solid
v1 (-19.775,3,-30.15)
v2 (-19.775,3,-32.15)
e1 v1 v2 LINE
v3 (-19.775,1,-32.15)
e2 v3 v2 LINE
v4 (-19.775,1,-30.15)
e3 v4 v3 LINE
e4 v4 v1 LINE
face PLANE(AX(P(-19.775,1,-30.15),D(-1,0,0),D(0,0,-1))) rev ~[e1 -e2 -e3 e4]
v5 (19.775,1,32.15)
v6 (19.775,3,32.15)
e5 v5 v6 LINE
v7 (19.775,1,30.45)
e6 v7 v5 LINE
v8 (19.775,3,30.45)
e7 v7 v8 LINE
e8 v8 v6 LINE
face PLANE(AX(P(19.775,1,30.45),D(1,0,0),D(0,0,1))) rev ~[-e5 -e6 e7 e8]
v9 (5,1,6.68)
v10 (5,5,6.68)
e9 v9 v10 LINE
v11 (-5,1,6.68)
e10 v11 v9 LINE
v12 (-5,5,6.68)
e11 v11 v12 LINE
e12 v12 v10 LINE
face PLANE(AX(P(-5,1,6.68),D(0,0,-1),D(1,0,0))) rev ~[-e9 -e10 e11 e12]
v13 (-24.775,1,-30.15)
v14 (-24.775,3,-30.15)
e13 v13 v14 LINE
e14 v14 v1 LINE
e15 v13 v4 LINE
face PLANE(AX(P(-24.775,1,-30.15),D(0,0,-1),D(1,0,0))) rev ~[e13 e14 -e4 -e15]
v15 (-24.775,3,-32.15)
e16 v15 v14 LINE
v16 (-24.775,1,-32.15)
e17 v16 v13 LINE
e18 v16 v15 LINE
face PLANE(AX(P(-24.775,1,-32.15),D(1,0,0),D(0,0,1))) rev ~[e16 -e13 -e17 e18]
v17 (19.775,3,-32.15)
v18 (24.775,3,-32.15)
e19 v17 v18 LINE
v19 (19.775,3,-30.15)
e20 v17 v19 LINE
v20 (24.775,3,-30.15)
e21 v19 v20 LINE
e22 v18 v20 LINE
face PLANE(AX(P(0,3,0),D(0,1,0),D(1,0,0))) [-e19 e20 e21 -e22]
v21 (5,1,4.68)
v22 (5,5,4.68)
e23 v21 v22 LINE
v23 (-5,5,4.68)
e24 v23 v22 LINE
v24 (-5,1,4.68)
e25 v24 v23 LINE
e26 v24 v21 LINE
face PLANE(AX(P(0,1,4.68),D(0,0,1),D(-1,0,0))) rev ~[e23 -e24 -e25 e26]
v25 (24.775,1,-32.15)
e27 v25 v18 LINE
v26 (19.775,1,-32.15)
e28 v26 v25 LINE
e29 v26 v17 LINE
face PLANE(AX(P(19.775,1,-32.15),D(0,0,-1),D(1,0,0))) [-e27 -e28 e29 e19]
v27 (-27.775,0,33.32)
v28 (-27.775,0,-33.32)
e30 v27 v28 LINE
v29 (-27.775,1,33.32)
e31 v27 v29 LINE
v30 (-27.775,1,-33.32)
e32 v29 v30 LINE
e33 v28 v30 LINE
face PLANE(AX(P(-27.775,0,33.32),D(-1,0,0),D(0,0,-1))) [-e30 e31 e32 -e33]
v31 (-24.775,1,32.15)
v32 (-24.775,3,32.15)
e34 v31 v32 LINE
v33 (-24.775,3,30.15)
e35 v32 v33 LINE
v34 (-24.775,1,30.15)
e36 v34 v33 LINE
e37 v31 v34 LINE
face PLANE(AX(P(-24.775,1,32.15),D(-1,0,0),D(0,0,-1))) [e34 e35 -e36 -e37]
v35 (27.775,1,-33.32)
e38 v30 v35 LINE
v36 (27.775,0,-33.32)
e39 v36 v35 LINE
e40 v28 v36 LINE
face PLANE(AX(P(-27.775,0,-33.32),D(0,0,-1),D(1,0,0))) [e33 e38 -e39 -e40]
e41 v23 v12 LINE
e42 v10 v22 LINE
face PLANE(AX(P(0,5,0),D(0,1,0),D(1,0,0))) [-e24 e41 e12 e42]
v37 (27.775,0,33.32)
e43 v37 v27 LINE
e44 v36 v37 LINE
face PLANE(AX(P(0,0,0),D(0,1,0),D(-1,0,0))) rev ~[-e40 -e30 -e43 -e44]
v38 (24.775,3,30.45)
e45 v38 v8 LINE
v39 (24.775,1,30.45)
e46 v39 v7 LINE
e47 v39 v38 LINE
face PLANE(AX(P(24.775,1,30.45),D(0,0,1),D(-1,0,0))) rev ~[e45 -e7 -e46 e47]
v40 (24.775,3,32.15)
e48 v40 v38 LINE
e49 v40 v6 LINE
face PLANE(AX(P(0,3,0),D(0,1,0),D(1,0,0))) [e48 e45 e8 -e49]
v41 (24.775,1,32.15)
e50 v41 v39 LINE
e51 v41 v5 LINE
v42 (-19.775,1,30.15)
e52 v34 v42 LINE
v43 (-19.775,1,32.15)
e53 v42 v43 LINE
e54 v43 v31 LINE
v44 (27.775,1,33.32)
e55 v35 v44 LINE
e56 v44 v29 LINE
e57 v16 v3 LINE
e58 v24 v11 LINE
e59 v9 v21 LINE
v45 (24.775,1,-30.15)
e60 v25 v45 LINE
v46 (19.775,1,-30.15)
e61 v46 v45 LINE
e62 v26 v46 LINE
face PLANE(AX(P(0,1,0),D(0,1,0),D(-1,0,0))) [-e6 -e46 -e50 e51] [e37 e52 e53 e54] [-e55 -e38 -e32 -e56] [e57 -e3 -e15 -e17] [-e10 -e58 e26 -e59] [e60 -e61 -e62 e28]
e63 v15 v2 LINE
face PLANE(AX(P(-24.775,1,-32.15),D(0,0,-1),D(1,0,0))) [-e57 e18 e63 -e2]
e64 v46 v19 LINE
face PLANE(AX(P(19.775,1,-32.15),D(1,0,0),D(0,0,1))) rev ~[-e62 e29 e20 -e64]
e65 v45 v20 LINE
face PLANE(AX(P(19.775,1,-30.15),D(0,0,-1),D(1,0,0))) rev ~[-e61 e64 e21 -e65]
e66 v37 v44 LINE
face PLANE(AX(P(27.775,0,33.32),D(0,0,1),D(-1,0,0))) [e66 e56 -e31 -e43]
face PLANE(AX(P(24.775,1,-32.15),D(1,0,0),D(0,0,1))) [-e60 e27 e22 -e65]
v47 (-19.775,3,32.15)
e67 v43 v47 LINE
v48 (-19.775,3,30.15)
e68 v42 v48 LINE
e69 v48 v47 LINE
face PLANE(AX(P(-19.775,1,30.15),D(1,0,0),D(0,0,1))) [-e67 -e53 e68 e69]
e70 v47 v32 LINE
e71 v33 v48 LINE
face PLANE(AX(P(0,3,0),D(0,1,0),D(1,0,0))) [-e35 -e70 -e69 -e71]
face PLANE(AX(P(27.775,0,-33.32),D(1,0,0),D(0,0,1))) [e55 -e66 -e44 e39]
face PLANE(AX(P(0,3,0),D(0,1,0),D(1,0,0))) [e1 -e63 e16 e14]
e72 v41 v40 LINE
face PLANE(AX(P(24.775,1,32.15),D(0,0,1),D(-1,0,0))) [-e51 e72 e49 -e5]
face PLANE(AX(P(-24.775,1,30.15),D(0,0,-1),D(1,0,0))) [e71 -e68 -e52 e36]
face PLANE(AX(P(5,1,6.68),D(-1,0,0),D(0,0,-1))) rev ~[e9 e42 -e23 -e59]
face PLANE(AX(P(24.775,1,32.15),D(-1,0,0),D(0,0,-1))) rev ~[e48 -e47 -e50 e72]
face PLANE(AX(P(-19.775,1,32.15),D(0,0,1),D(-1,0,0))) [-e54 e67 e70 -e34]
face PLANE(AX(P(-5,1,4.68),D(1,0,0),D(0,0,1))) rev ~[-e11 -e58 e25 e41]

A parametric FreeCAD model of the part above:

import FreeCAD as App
import Part
import Sketcher
Q = App.Units.Quantity

doc = App.newDocument("Part")
params = doc.addObject("Spreadsheet::Sheet", "Params")
for row, (alias, value) in enumerate([
    ("sketch1_width", "55.55 mm"),
    ("sketch1_height", "66.64 mm"),
    ("pad1_length", "1 mm"),
    ("sketch2_width", "5 mm"),
    ("sketch2_height", "2 mm"),
    ("sketch2_height2", "1.7 mm"),
    ("pad2_length", "2 mm"),
    ("sketch3_height", "2 mm"),
    ("pad3_length", "4 mm"),
], start=1):
    params.set(f"A{row}", alias)
    params.set(f"B{row}", "=" + value)
    params.setAlias(f"B{row}", alias)

body = doc.addObject("PartDesign::Body", "Body")

# Sketch on XZ plane
sketch1 = body.newObject("Sketcher::SketchObject", "Sketch")
sketch1.AttachmentSupport = (doc.getObject("XZ_Plane"), [""])
sketch1.MapMode = "FlatFace"
sketch1.addGeometry(Part.LineSegment(App.Vector(28, -33, 0), App.Vector(-28, -33, 0)), False)
sketch1.addGeometry(Part.LineSegment(App.Vector(-28, -33, 0), App.Vector(-28, 33, 0)), False)
sketch1.addGeometry(Part.LineSegment(App.Vector(-28, 33, 0), App.Vector(28, 33, 0)), False)
sketch1.addGeometry(Part.LineSegment(App.Vector(28, 33, 0), App.Vector(28, -33, 0)), False)
sketch1.addConstraint(Sketcher.Constraint("Coincident", 0, 2, 1, 1))
sketch1.addConstraint(Sketcher.Constraint("Coincident", 1, 2, 2, 1))
sketch1.addConstraint(Sketcher.Constraint("Coincident", 2, 2, 3, 1))
sketch1.addConstraint(Sketcher.Constraint("Coincident", 3, 2, 0, 1))
sketch1.addConstraint(Sketcher.Constraint("Horizontal", 0))
sketch1.addConstraint(Sketcher.Constraint("Vertical", 1))
sketch1.addConstraint(Sketcher.Constraint("Horizontal", 2))
sketch1.addConstraint(Sketcher.Constraint("Vertical", 3))
sketch1.addConstraint(Sketcher.Constraint("Symmetric", 0, 2, 2, 2, -1, 1))
sketch1.addConstraint(Sketcher.Constraint("DistanceX", 0, 2, 0, 1, Q("55.55 mm")))
sketch1.addConstraint(Sketcher.Constraint("DistanceY", 1, 1, 1, 2, Q("66.64 mm")))
sketch1.setExpression("Constraints[9]", "Params.sketch1_width")
sketch1.setExpression("Constraints[10]", "Params.sketch1_height")
pad1 = body.newObject("PartDesign::Pad", "Pad")
pad1.Profile = sketch1
pad1.setExpression("Length", "Params.pad1_length")
pad1.Reversed = True

# Sketch on XZ plane
sketch2 = body.newObject("Sketcher::SketchObject", "Sketch001")
sketch2.AttachmentSupport = (doc.getObject("XZ_Plane"), [""])
sketch2.MapMode = "FlatFace"
sketch2.AttachmentOffset = App.Placement(App.Vector(0, 0, -1), App.Rotation())
sketch2.addGeometry(Part.LineSegment(App.Vector(-19.8, -32.1, 0), App.Vector(-24.8, -32.1, 0)), False)
sketch2.addGeometry(Part.LineSegment(App.Vector(-24.8, -32.1, 0), App.Vector(-24.8, -30.1, 0)), False)
sketch2.addGeometry(Part.LineSegment(App.Vector(-24.8, -30.1, 0), App.Vector(-19.8, -30.1, 0)), False)
sketch2.addGeometry(Part.LineSegment(App.Vector(-19.8, -30.1, 0), App.Vector(-19.8, -32.1, 0)), False)
sketch2.addGeometry(Part.LineSegment(App.Vector(24.8, -32.1, 0), App.Vector(19.8, -32.1, 0)), False)
sketch2.addGeometry(Part.LineSegment(App.Vector(19.8, -32.1, 0), App.Vector(19.8, -30.1, 0)), False)
sketch2.addGeometry(Part.LineSegment(App.Vector(19.8, -30.1, 0), App.Vector(24.8, -30.1, 0)), False)
sketch2.addGeometry(Part.LineSegment(App.Vector(24.8, -30.1, 0), App.Vector(24.8, -32.1, 0)), False)
sketch2.addGeometry(Part.LineSegment(App.Vector(-24.8, 30.1, 0), App.Vector(-24.8, 32.1, 0)), False)
sketch2.addGeometry(Part.LineSegment(App.Vector(-24.8, 32.1, 0), App.Vector(-19.8, 32.1, 0)), False)
sketch2.addGeometry(Part.LineSegment(App.Vector(-19.8, 32.1, 0), App.Vector(-19.8, 30.1, 0)), False)
sketch2.addGeometry(Part.LineSegment(App.Vector(-19.8, 30.1, 0), App.Vector(-24.8, 30.1, 0)), False)
sketch2.addGeometry(Part.LineSegment(App.Vector(19.8, 30.4, 0), App.Vector(19.8, 32.1, 0)), False)
sketch2.addGeometry(Part.LineSegment(App.Vector(19.8, 32.1, 0), App.Vector(24.8, 32.1, 0)), False)
sketch2.addGeometry(Part.LineSegment(App.Vector(24.8, 32.1, 0), App.Vector(24.8, 30.4, 0)), False)
sketch2.addGeometry(Part.LineSegment(App.Vector(24.8, 30.4, 0), App.Vector(19.8, 30.4, 0)), False)
sketch2.addConstraint(Sketcher.Constraint("Coincident", 0, 2, 1, 1))
sketch2.addConstraint(Sketcher.Constraint("Coincident", 1, 2, 2, 1))
sketch2.addConstraint(Sketcher.Constraint("Coincident", 2, 2, 3, 1))
sketch2.addConstraint(Sketcher.Constraint("Coincident", 3, 2, 0, 1))
sketch2.addConstraint(Sketcher.Constraint("Coincident", 4, 2, 5, 1))
sketch2.addConstraint(Sketcher.Constraint("Coincident", 5, 2, 6, 1))
sketch2.addConstraint(Sketcher.Constraint("Coincident", 6, 2, 7, 1))
sketch2.addConstraint(Sketcher.Constraint("Coincident", 7, 2, 4, 1))
sketch2.addConstraint(Sketcher.Constraint("Coincident", 8, 2, 9, 1))
sketch2.addConstraint(Sketcher.Constraint("Coincident", 9, 2, 10, 1))
sketch2.addConstraint(Sketcher.Constraint("Coincident", 10, 2, 11, 1))
sketch2.addConstraint(Sketcher.Constraint("Coincident", 11, 2, 8, 1))
sketch2.addConstraint(Sketcher.Constraint("Coincident", 12, 2, 13, 1))
sketch2.addConstraint(Sketcher.Constraint("Coincident", 13, 2, 14, 1))
sketch2.addConstraint(Sketcher.Constraint("Coincident", 14, 2, 15, 1))
sketch2.addConstraint(Sketcher.Constraint("Coincident", 15, 2, 12, 1))
sketch2.addConstraint(Sketcher.Constraint("Horizontal", 0))
sketch2.addConstraint(Sketcher.Constraint("Vertical", 1))
sketch2.addConstraint(Sketcher.Constraint("Horizontal", 2))
sketch2.addConstraint(Sketcher.Constraint("Vertical", 3))
sketch2.addConstraint(Sketcher.Constraint("Horizontal", 4))
sketch2.addConstraint(Sketcher.Constraint("Vertical", 5))
sketch2.addConstraint(Sketcher.Constraint("Horizontal", 6))
sketch2.addConstraint(Sketcher.Constraint("Vertical", 7))
sketch2.addConstraint(Sketcher.Constraint("Vertical", 8))
sketch2.addConstraint(Sketcher.Constraint("Horizontal", 9))
sketch2.addConstraint(Sketcher.Constraint("Vertical", 10))
sketch2.addConstraint(Sketcher.Constraint("Horizontal", 11))
sketch2.addConstraint(Sketcher.Constraint("Vertical", 12))
sketch2.addConstraint(Sketcher.Constraint("Horizontal", 13))
sketch2.addConstraint(Sketcher.Constraint("Vertical", 14))
sketch2.addConstraint(Sketcher.Constraint("Horizontal", 15))
sketch2.addConstraint(Sketcher.Constraint("Symmetric", 7, 2, 8, 2, -1, 1))
sketch2.addConstraint(Sketcher.Constraint("Symmetric", 5, 2, 10, 2, -1, 1))
sketch2.addConstraint(Sketcher.Constraint("Symmetric", 3, 2, 12, 2, -1, 1))
sketch2.addConstraint(Sketcher.Constraint("Symmetric", 3, 2, 4, 2, -2))
sketch2.addConstraint(Sketcher.Constraint("Symmetric", 1, 2, 6, 2, -2))
sketch2.addConstraint(Sketcher.Constraint("Vertical", 7, 2, 13, 2))
sketch2.addConstraint(Sketcher.Constraint("DistanceX", 0, 2, 0, 1, Q("5 mm")))
sketch2.addConstraint(Sketcher.Constraint("DistanceY", 1, 1, 1, 2, Q("2 mm")))
sketch2.addConstraint(Sketcher.Constraint("DistanceY", 0, 2, 8, 2, Q("64.3 mm")))
sketch2.addConstraint(Sketcher.Constraint("DistanceY", 12, 1, 12, 2, Q("1.7 mm")))
sketch2.addConstraint(Sketcher.Constraint("DistanceX", 3, 2, 4, 2, Q("39.55 mm")))
sketch2.setExpression("Constraints[38]", "Params.sketch2_width")
sketch2.setExpression("Constraints[39]", "Params.sketch2_height")
sketch2.setExpression("Constraints[41]", "Params.sketch2_height2")
pad2 = body.newObject("PartDesign::Pad", "Pad001")
pad2.Profile = sketch2
pad2.setExpression("Length", "Params.pad2_length")
pad2.Reversed = True

# Sketch on XZ plane
sketch3 = body.newObject("Sketcher::SketchObject", "Sketch002")
sketch3.AttachmentSupport = (doc.getObject("XZ_Plane"), [""])
sketch3.MapMode = "FlatFace"
sketch3.AttachmentOffset = App.Placement(App.Vector(0, 0, -1), App.Rotation())
sketch3.addGeometry(Part.LineSegment(App.Vector(5, 4.7, 0), App.Vector(-5, 4.7, 0)), False)
sketch3.addGeometry(Part.LineSegment(App.Vector(-5, 4.7, 0), App.Vector(-5, 6.7, 0)), False)
sketch3.addGeometry(Part.LineSegment(App.Vector(-5, 6.7, 0), App.Vector(5, 6.7, 0)), False)
sketch3.addGeometry(Part.LineSegment(App.Vector(5, 6.7, 0), App.Vector(5, 4.7, 0)), False)
sketch3.addConstraint(Sketcher.Constraint("Coincident", 0, 2, 1, 1))
sketch3.addConstraint(Sketcher.Constraint("Coincident", 1, 2, 2, 1))
sketch3.addConstraint(Sketcher.Constraint("Coincident", 2, 2, 3, 1))
sketch3.addConstraint(Sketcher.Constraint("Coincident", 3, 2, 0, 1))
sketch3.addConstraint(Sketcher.Constraint("Horizontal", 0))
sketch3.addConstraint(Sketcher.Constraint("Vertical", 1))
sketch3.addConstraint(Sketcher.Constraint("Horizontal", 2))
sketch3.addConstraint(Sketcher.Constraint("Vertical", 3))
sketch3.addConstraint(Sketcher.Constraint("DistanceY", 1, 1, 1, 2, Q("2 mm")))
sketch3.addConstraint(Sketcher.Constraint("DistanceX", 0, 2, -1, 1, Q("5 mm")))
sketch3.addConstraint(Sketcher.Constraint("DistanceX", -1, 1, 2, 2, Q("5 mm")))
sketch3.addConstraint(Sketcher.Constraint("DistanceY", -1, 1, 0, 2, Q("4.68 mm")))
sketch3.setExpression("Constraints[8]", "Params.sketch3_height")
pad3 = body.newObject("PartDesign::Pad", "Pad002")
pad3.Profile = sketch3
pad3.setExpression("Length", "Params.pad3_length")
pad3.Reversed = True

doc.recompute()
